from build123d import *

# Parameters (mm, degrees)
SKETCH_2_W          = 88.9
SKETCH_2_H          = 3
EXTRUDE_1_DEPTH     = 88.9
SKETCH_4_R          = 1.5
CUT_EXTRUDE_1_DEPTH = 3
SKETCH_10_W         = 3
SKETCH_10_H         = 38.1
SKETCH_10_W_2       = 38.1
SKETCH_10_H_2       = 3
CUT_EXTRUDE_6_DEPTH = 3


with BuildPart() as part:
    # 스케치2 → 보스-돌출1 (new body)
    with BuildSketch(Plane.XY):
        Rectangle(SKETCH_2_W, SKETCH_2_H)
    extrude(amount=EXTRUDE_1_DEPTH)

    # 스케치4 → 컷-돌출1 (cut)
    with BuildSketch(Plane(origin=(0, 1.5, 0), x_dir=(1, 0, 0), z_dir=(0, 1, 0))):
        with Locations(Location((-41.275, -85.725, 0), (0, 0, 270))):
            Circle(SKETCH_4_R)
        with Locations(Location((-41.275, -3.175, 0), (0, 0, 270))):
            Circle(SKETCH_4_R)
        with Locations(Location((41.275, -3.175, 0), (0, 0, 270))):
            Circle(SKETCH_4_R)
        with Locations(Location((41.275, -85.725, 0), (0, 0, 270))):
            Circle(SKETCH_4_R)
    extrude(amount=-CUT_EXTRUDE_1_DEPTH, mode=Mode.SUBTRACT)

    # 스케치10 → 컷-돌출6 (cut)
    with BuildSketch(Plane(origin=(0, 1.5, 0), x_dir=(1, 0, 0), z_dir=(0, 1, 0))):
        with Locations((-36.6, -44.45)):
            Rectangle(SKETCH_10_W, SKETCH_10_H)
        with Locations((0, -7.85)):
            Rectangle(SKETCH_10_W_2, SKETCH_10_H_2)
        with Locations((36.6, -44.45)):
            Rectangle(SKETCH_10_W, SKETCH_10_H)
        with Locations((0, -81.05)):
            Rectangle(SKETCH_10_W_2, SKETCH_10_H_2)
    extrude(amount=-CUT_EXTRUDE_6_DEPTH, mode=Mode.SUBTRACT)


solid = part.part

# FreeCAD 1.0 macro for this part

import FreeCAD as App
import Part
import Sketcher

V = App.Vector
Q = App.Units.Quantity

doc = App.newDocument("Part")
params = doc.addObject("Spreadsheet::Sheet", "Params")
for row, (alias, value) in enumerate([
    ("sketch1_width", "3.5 in"),
    ("pad1_length", "3.5 in"),
    ("pocket1_length", "3 mm"),
    ("sketch3_width", "1.5 in"),
    ("pocket2_length", "3 mm"),
], start=1):
    params.set(f"A{row}", alias)
    params.set(f"B{row}", "=" + value)
    params.setAlias(f"B{row}", alias)

body = doc.addObject("PartDesign::Body", "Body")

# Sketch on XY plane
sketch1 = body.newObject("Sketcher::SketchObject", "Sketch")
sketch1.AttachmentSupport = (doc.getObject("XY_Plane"), [""])
sketch1.MapMode = "FlatFace"
sketch1.addGeometry(Part.LineSegment(V(-44.45, 1.5, 0), V(-44.45, -1.5, 0)), False)
sketch1.addGeometry(Part.LineSegment(V(-44.45, -1.5, 0), V(44.45, -1.5, 0)), False)
sketch1.addGeometry(Part.LineSegment(V(44.45, -1.5, 0), V(44.45, 1.5, 0)), False)
sketch1.addGeometry(Part.LineSegment(V(44.45, 1.5, 0), V(-44.45, 1.5, 0)), False)
sketch1.addConstraint(Sketcher.Constraint("Coincident", 0, 2, 1, 1))
sketch1.addConstraint(Sketcher.Constraint("Coincident", 1, 2, 2, 1))
sketch1.addConstraint(Sketcher.Constraint("Coincident", 2, 2, 3, 1))
sketch1.addConstraint(Sketcher.Constraint("Coincident", 3, 2, 0, 1))
sketch1.addConstraint(Sketcher.Constraint("Vertical", 0))
sketch1.addConstraint(Sketcher.Constraint("Horizontal", 1))
sketch1.addConstraint(Sketcher.Constraint("Vertical", 2))
sketch1.addConstraint(Sketcher.Constraint("Horizontal", 3))
sketch1.addConstraint(Sketcher.Constraint("Symmetric", 0, 2, 2, 2, -1, 1))
sketch1.addConstraint(Sketcher.Constraint("DistanceX", 1, 1, 1, 2, Q("3.5 in")))
sketch1.addConstraint(Sketcher.Constraint("DistanceY", 0, 2, 0, 1, Q("3 mm")))
sketch1.setExpression("Constraints[9]", "Params.sketch1_width")
pad1 = body.newObject("PartDesign::Pad", "Pad")
pad1.Profile = sketch1
pad1.setExpression("Length", "Params.pad1_length")

# Sketch on XZ plane
sketch2 = body.newObject("Sketcher::SketchObject", "Sketch001")
sketch2.AttachmentSupport = (doc.getObject("XZ_Plane"), [""])
sketch2.MapMode = "FlatFace"
sketch2.AttachmentOffset = App.Placement(V(0, 0, -1.5), App.Rotation())
sketch2.addGeometry(Part.Circle(V(-41.275, 85.725, 0), V(0, 0, 1), 1.5), False)
sketch2.addGeometry(Part.Circle(V(-41.275, 3.175, 0), V(0, 0, 1), 1.5), False)
sketch2.addGeometry(Part.Circle(V(41.275, 3.175, 0), V(0, 0, 1), 1.5), False)
sketch2.addGeometry(Part.Circle(V(41.275, 85.725, 0), V(0, 0, 1), 1.5), False)
sketch2.addConstraint(Sketcher.Constraint("Equal", 0, 1))
sketch2.addConstraint(Sketcher.Constraint("Equal", 1, 2))
sketch2.addConstraint(Sketcher.Constraint("Equal", 2, 3))
sketch2.addConstraint(Sketcher.Constraint("Symmetric", 1, 3, 2, 3, -2))
sketch2.addConstraint(Sketcher.Constraint("Symmetric", 0, 3, 3, 3, -2))
sketch2.addConstraint(Sketcher.Constraint("Vertical", 0, 3, 1, 3))
sketch2.addConstraint(Sketcher.Constraint("Diameter", 0, Q("3 mm")))
sketch2.addConstraint(Sketcher.Constraint("DistanceY", 1, 3, 0, 3, Q("3.25 in")))
sketch2.addConstraint(Sketcher.Constraint("DistanceX", 1, 3, 2, 3, Q("3.25 in")))
sketch2.addConstraint(Sketcher.Constraint("DistanceY", -1, 1, 0, 3, Q("3.375 in")))
pocket1 = body.newObject("PartDesign::Pocket", "Pocket")
pocket1.Profile = sketch2
pocket1.setExpression("Length", "Params.pocket1_length")
pocket1.Reversed = True

# Sketch on XZ plane
sketch3 = body.newObject("Sketcher::SketchObject", "Sketch002")
sketch3.AttachmentSupport = (doc.getObject("XZ_Plane"), [""])
sketch3.MapMode = "FlatFace"
sketch3.AttachmentOffset = App.Placement(V(0, 0, -1.5), App.Rotation())
sketch3.addGeometry(Part.LineSegment(V(-38.1, 25.4, 0), V(-38.1, 63.5, 0)), False)
sketch3.addGeometry(Part.LineSegment(V(-38.1, 63.5, 0), V(-35.1, 63.5, 0)), False)
sketch3.addGeometry(Part.LineSegment(V(-35.1, 63.5, 0), V(-35.1, 25.4, 0)), False)
sketch3.addGeometry(Part.LineSegment(V(-35.1, 25.4, 0), V(-38.1, 25.4, 0)), False)
sketch3.addGeometry(Part.LineSegment(V(-19.05, 6.35, 0), V(-19.05, 9.35, 0)), False)
sketch3.addGeometry(Part.LineSegment(V(-19.05, 9.35, 0), V(19.05, 9.35, 0)), False)
sketch3.addGeometry(Part.LineSegment(V(19.05, 9.35, 0), V(19.05, 6.35, 0)), False)
sketch3.addGeometry(Part.LineSegment(V(19.05, 6.35, 0), V(-19.05, 6.35, 0)), False)
sketch3.addGeometry(Part.LineSegment(V(35.1, 25.4, 0), V(35.1, 63.5, 0)), False)
sketch3.addGeometry(Part.LineSegment(V(35.1, 63.5, 0), V(38.1, 63.5, 0)), False)
sketch3.addGeometry(Part.LineSegment(V(38.1, 63.5, 0), V(38.1, 25.4, 0)), False)
sketch3.addGeometry(Part.LineSegment(V(38.1, 25.4, 0), V(35.1, 25.4, 0)), False)
sketch3.addGeometry(Part.LineSegment(V(-19.05, 79.55, 0), V(-19.05, 82.55, 0)), False)
sketch3.addGeometry(Part.LineSegment(V(-19.05, 82.55, 0), V(19.05, 82.55, 0)), False)
sketch3.addGeometry(Part.LineSegment(V(19.05, 82.55, 0), V(19.05, 79.55, 0)), False)
sketch3.addGeometry(Part.LineSegment(V(19.05, 79.55, 0), V(-19.05, 79.55, 0)), False)
sketch3.addConstraint(Sketcher.Constraint("Coincident", 0, 2, 1, 1))
sketch3.addConstraint(Sketcher.Constraint("Coincident", 1, 2, 2, 1))
sketch3.addConstraint(Sketcher.Constraint("Coincident", 2, 2, 3, 1))
sketch3.addConstraint(Sketcher.Constraint("Coincident", 3, 2, 0, 1))
sketch3.addConstraint(Sketcher.Constraint("Coincident", 4, 2, 5, 1))
sketch3.addConstraint(Sketcher.Constraint("Coincident", 5, 2, 6, 1))
sketch3.addConstraint(Sketcher.Constraint("Coincident", 6, 2, 7, 1))
sketch3.addConstraint(Sketcher.Constraint("Coincident", 7, 2, 4, 1))
sketch3.addConstraint(Sketcher.Constraint("Coincident", 8, 2, 9, 1))
sketch3.addConstraint(Sketcher.Constraint("Coincident", 9, 2, 10, 1))
sketch3.addConstraint(Sketcher.Constraint("Coincident", 10, 2, 11, 1))
sketch3.addConstraint(Sketcher.Constraint("Coincident", 11, 2, 8, 1))
sketch3.addConstraint(Sketcher.Constraint("Coincident", 12, 2, 13, 1))
sketch3.addConstraint(Sketcher.Constraint("Coincident", 13, 2, 14, 1))
sketch3.addConstraint(Sketcher.Constraint("Coincident", 14, 2, 15, 1))
sketch3.addConstraint(Sketcher.Constraint("Coincident", 15, 2, 12, 1))
sketch3.addConstraint(Sketcher.Constraint("Vertical", 0))
sketch3.addConstraint(Sketcher.Constraint("Horizontal", 1))
sketch3.addConstraint(Sketcher.Constraint("Vertical", 2))
sketch3.addConstraint(Sketcher.Constraint("Horizontal", 3))
sketch3.addConstraint(Sketcher.Constraint("Vertical", 4))
sketch3.addConstraint(Sketcher.Constraint("Horizontal", 5))
sketch3.addConstraint(Sketcher.Constraint("Vertical", 6))
sketch3.addConstraint(Sketcher.Constraint("Horizontal", 7))
sketch3.addConstraint(Sketcher.Constraint("Vertical", 8))
sketch3.addConstraint(Sketcher.Constraint("Horizontal", 9))
sketch3.addConstraint(Sketcher.Constraint("Vertical", 10))
sketch3.addConstraint(Sketcher.Constraint("Horizontal", 11))
sketch3.addConstraint(Sketcher.Constraint("Vertical", 12))
sketch3.addConstraint(Sketcher.Constraint("Horizontal", 13))
sketch3.addConstraint(Sketcher.Constraint("Vertical", 14))
sketch3.addConstraint(Sketcher.Constraint("Horizontal", 15))
sketch3.addConstraint(Sketcher.Constraint("Symmetric", 1, 2, 8, 2, -2))
sketch3.addConstraint(Sketcher.Constraint("Symmetric", 3, 2, 10, 2, -2))
sketch3.addConstraint(Sketcher.Constraint("Vertical", 7, 2, 12, 2))
sketch3.addConstraint(Sketcher.Constraint("Vertical", 6, 2, 13, 2))
sketch3.addConstraint(Sketcher.Constraint("Equal", 15, 0))
sketch3.addConstraint(Sketcher.Constraint("Equal", 11, 4))
sketch3.addConstraint(Sketcher.Constraint("Equal", 6, 12))
sketch3.addConstraint(Sketcher.Constraint("DistanceX", 5, 1, 5, 2, Q("1.5 in")))
sketch3.addConstraint(Sketcher.Constraint("DistanceY", -1, 1, 2, 2, Q("1 in")))
sketch3.addConstraint(Sketcher.Constraint("DistanceX", 0, 2, 9, 2, Q("3 in")))
sketch3.addConstraint(Sketcher.Constraint("DistanceX", 4, 2, -1, 1, Q("0.75 in")))
sketch3.addConstraint(Sketcher.Constraint("DistanceY", -1, 1, 6, 2, Q("0.25 in")))
sketch3.addConstraint(Sketcher.Constraint("DistanceY", -1, 1, 12, 2, Q("3.25 in")))
sketch3.addConstraint(Sketcher.Constraint("DistanceX", 1, 1, 1, 2, Q("3 mm")))
sketch3.setExpression("Constraints[39]", "Params.sketch3_width")
pocket2 = body.newObject("PartDesign::Pocket", "Pocket001")
pocket2.Profile = sketch3
pocket2.setExpression("Length", "Params.pocket2_length")
pocket2.Reversed = True

doc.recompute()
